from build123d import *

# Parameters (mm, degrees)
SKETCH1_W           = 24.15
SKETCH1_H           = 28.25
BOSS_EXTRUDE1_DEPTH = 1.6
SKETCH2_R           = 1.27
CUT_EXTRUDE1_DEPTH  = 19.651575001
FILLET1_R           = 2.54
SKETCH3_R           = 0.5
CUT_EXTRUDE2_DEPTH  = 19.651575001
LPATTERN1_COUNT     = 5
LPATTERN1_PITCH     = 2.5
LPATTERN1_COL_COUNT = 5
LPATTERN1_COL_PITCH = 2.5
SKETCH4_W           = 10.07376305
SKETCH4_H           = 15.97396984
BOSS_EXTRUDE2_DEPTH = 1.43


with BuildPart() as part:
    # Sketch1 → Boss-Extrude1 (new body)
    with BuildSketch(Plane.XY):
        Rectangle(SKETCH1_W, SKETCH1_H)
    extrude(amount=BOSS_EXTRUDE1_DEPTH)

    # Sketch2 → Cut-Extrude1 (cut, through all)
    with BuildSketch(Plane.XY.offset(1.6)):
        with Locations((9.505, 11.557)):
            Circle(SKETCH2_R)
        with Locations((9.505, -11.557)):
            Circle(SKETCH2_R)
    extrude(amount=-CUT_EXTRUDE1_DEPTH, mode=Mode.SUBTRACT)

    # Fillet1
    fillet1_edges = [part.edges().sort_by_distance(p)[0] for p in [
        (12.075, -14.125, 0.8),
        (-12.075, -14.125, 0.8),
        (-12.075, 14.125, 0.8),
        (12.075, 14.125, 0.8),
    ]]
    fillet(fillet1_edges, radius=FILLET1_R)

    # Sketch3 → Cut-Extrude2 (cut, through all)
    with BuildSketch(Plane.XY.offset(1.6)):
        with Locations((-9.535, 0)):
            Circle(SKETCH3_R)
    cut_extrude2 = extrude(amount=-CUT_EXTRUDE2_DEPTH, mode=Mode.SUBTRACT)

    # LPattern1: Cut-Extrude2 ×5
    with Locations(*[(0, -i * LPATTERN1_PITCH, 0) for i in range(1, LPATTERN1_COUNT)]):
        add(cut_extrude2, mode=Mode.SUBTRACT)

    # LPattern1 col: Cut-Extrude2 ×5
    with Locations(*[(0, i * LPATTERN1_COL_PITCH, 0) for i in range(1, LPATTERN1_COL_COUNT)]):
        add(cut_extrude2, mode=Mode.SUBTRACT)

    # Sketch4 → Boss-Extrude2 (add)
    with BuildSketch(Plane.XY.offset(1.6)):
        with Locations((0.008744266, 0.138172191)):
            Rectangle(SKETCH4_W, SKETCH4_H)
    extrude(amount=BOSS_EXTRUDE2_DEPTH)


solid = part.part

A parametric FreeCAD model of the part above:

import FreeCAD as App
import Part
import Sketcher

V = App.Vector


def edges_at(feature, points):
    """Names of the edges that pass closest to the given points."""
    edges = feature.Shape.Edges
    near = lambda p: min(range(len(edges)), key=lambda i: edges[i].distToShape(Part.Vertex(*p))[0])
    return sorted({f"Edge{near(p) + 1}" for p in points})


def add_polygon(sketch, points):
    """Adds a closed chain of lines whose ends are joined by coincident constraints."""
    first, n = sketch.GeometryCount, len(points)
    for a, b in zip(points, points[1:] + points[:1]):
        sketch.addGeometry(Part.LineSegment(App.Vector(*a, 0), App.Vector(*b, 0)), False)
    for i in range(n):
        sketch.addConstraint(Sketcher.Constraint("Coincident", first + i, 2, first + (i + 1) % n, 1))

doc = App.newDocument("Part")
body = doc.addObject("PartDesign::Body", "Body")

sketch1 = doc.addObject("Sketcher::SketchObject", "Sketch")
body.addObject(sketch1)
sketch1.AttachmentSupport = (doc.XY_Plane, [""])
sketch1.MapMode = "FlatFace"
add_polygon(sketch1, [(-12, 14), (-12, -14), (12, -14), (12, 14)])
sketch1.addConstraint([
    Sketcher.Constraint("Vertical", 0),
    Sketcher.Constraint("Horizontal", 1),
    Sketcher.Constraint("Vertical", 2),
    Sketcher.Constraint("Horizontal", 3),
    Sketcher.Constraint("Symmetric", 0, 2, 2, 2, -1, 1),
    Sketcher.Constraint("DistanceX", 1, 1, 1, 2, 24.15),
    Sketcher.Constraint("DistanceY", 0, 2, 0, 1, 28.25),
])
pad1 = doc.addObject("PartDesign::Pad", "Pad")
body.addObject(pad1)
pad1.Profile = sketch1
pad1.Length = 1.6

sketch2 = doc.addObject("Sketcher::SketchObject", "Sketch001")
body.addObject(sketch2)
sketch2.AttachmentSupport = (doc.XY_Plane, [""])
sketch2.MapMode = "FlatFace"
sketch2.AttachmentOffset = App.Placement(V(0, 0, 1.6), App.Rotation())
sketch2.addGeometry([
    Part.Circle(V(9.5, 11.6, 0), V(0, 0, 1), 1.3),
    Part.Circle(V(9.5, -11.6, 0), V(0, 0, 1), 1.3),
], False)
sketch2.addConstraint([
    Sketcher.Constraint("Equal", 0, 1),
    Sketcher.Constraint("Symmetric", 0, 3, 1, 3, -1),
    Sketcher.Constraint("Diameter", 0, 2.54),
    Sketcher.Constraint("DistanceX", -1, 1, 0, 3, 9.505),
    Sketcher.Constraint("DistanceY", -1, 1, 0, 3, 11.557),
])
pocket1 = doc.addObject("PartDesign::Pocket", "Pocket")
body.addObject(pocket1)
pocket1.Profile = sketch2
pocket1.Type = "ThroughAll"
doc.recompute()

fillet = doc.addObject("PartDesign::Fillet", "Fillet")
body.addObject(fillet)
fillet.Base = (pocket1, edges_at(pocket1, [
    (12.075, -14.125, 0.8),
    (-12.075, -14.125, 0.8),
    (-12.075, 14.125, 0.8),
    (12.075, 14.125, 0.8),
]))
fillet.Radius = 2.54

sketch3 = doc.addObject("Sketcher::SketchObject", "Sketch002")
body.addObject(sketch3)
sketch3.AttachmentSupport = (doc.XY_Plane, [""])
sketch3.MapMode = "FlatFace"
sketch3.AttachmentOffset = App.Placement(V(0, 0, 1.6), App.Rotation())
sketch3.addGeometry(Part.Circle(V(-9.5, 0, 0), V(0, 0, 1), 0.5), False)
sketch3.addConstraint([
    Sketcher.Constraint("PointOnObject", 0, 3, -1),
    Sketcher.Constraint("Diameter", 0, 1.0),
    Sketcher.Constraint("DistanceX", 0, 3, -1, 1, 9.535),
])
pocket2 = doc.addObject("PartDesign::Pocket", "Pocket001")
body.addObject(pocket2)
pocket2.Profile = sketch3
pocket2.Type = "ThroughAll"
doc.recompute()

linearpattern = doc.addObject("PartDesign::LinearPattern", "LinearPattern")
body.addObject(linearpattern)
linearpattern.Originals = [pocket2]
linearpattern.Direction = (doc.Y_Axis, [""])
linearpattern.Mode = "offset"
linearpattern.Offset = 2.5
linearpattern.Occurrences = 5
linearpattern.Reversed = True
body.Tip = linearpattern
doc.recompute()

linearpattern2 = doc.addObject("PartDesign::LinearPattern", "LinearPattern001")
body.addObject(linearpattern2)
linearpattern2.Originals = [pocket2]
linearpattern2.Direction = (doc.Y_Axis, [""])
linearpattern2.Mode = "offset"
linearpattern2.Offset = 2.5
linearpattern2.Occurrences = 5
body.Tip = linearpattern2

sketch4 = doc.addObject("Sketcher::SketchObject", "Sketch003")
body.addObject(sketch4)
sketch4.AttachmentSupport = (doc.XY_Plane, [""])
sketch4.MapMode = "FlatFace"
sketch4.AttachmentOffset = App.Placement(V(0, 0, 1.6), App.Rotation())
add_polygon(sketch4, [(-5, 8), (-5, -8), (5, -8), (5, 8)])
sketch4.addConstraint([
    Sketcher.Constraint("Vertical", 0),
    Sketcher.Constraint("Horizontal", 1),
    Sketcher.Constraint("Vertical", 2),
    Sketcher.Constraint("Horizontal", 3),
    Sketcher.Constraint("DistanceY", 0, 2, 0, 1, 15.97397),
    Sketcher.Constraint("DistanceX", 1, 1, 1, 2, 10.073763),
    Sketcher.Constraint("DistanceX", 0, 2, -1, 1, 5.028137),
    Sketcher.Constraint("DistanceY", 0, 2, -1, 1, 7.848813),
])
pad2 = doc.addObject("PartDesign::Pad", "Pad001")
body.addObject(pad2)
pad2.Profile = sketch4
pad2.Length = 1.43

doc.recompute()
